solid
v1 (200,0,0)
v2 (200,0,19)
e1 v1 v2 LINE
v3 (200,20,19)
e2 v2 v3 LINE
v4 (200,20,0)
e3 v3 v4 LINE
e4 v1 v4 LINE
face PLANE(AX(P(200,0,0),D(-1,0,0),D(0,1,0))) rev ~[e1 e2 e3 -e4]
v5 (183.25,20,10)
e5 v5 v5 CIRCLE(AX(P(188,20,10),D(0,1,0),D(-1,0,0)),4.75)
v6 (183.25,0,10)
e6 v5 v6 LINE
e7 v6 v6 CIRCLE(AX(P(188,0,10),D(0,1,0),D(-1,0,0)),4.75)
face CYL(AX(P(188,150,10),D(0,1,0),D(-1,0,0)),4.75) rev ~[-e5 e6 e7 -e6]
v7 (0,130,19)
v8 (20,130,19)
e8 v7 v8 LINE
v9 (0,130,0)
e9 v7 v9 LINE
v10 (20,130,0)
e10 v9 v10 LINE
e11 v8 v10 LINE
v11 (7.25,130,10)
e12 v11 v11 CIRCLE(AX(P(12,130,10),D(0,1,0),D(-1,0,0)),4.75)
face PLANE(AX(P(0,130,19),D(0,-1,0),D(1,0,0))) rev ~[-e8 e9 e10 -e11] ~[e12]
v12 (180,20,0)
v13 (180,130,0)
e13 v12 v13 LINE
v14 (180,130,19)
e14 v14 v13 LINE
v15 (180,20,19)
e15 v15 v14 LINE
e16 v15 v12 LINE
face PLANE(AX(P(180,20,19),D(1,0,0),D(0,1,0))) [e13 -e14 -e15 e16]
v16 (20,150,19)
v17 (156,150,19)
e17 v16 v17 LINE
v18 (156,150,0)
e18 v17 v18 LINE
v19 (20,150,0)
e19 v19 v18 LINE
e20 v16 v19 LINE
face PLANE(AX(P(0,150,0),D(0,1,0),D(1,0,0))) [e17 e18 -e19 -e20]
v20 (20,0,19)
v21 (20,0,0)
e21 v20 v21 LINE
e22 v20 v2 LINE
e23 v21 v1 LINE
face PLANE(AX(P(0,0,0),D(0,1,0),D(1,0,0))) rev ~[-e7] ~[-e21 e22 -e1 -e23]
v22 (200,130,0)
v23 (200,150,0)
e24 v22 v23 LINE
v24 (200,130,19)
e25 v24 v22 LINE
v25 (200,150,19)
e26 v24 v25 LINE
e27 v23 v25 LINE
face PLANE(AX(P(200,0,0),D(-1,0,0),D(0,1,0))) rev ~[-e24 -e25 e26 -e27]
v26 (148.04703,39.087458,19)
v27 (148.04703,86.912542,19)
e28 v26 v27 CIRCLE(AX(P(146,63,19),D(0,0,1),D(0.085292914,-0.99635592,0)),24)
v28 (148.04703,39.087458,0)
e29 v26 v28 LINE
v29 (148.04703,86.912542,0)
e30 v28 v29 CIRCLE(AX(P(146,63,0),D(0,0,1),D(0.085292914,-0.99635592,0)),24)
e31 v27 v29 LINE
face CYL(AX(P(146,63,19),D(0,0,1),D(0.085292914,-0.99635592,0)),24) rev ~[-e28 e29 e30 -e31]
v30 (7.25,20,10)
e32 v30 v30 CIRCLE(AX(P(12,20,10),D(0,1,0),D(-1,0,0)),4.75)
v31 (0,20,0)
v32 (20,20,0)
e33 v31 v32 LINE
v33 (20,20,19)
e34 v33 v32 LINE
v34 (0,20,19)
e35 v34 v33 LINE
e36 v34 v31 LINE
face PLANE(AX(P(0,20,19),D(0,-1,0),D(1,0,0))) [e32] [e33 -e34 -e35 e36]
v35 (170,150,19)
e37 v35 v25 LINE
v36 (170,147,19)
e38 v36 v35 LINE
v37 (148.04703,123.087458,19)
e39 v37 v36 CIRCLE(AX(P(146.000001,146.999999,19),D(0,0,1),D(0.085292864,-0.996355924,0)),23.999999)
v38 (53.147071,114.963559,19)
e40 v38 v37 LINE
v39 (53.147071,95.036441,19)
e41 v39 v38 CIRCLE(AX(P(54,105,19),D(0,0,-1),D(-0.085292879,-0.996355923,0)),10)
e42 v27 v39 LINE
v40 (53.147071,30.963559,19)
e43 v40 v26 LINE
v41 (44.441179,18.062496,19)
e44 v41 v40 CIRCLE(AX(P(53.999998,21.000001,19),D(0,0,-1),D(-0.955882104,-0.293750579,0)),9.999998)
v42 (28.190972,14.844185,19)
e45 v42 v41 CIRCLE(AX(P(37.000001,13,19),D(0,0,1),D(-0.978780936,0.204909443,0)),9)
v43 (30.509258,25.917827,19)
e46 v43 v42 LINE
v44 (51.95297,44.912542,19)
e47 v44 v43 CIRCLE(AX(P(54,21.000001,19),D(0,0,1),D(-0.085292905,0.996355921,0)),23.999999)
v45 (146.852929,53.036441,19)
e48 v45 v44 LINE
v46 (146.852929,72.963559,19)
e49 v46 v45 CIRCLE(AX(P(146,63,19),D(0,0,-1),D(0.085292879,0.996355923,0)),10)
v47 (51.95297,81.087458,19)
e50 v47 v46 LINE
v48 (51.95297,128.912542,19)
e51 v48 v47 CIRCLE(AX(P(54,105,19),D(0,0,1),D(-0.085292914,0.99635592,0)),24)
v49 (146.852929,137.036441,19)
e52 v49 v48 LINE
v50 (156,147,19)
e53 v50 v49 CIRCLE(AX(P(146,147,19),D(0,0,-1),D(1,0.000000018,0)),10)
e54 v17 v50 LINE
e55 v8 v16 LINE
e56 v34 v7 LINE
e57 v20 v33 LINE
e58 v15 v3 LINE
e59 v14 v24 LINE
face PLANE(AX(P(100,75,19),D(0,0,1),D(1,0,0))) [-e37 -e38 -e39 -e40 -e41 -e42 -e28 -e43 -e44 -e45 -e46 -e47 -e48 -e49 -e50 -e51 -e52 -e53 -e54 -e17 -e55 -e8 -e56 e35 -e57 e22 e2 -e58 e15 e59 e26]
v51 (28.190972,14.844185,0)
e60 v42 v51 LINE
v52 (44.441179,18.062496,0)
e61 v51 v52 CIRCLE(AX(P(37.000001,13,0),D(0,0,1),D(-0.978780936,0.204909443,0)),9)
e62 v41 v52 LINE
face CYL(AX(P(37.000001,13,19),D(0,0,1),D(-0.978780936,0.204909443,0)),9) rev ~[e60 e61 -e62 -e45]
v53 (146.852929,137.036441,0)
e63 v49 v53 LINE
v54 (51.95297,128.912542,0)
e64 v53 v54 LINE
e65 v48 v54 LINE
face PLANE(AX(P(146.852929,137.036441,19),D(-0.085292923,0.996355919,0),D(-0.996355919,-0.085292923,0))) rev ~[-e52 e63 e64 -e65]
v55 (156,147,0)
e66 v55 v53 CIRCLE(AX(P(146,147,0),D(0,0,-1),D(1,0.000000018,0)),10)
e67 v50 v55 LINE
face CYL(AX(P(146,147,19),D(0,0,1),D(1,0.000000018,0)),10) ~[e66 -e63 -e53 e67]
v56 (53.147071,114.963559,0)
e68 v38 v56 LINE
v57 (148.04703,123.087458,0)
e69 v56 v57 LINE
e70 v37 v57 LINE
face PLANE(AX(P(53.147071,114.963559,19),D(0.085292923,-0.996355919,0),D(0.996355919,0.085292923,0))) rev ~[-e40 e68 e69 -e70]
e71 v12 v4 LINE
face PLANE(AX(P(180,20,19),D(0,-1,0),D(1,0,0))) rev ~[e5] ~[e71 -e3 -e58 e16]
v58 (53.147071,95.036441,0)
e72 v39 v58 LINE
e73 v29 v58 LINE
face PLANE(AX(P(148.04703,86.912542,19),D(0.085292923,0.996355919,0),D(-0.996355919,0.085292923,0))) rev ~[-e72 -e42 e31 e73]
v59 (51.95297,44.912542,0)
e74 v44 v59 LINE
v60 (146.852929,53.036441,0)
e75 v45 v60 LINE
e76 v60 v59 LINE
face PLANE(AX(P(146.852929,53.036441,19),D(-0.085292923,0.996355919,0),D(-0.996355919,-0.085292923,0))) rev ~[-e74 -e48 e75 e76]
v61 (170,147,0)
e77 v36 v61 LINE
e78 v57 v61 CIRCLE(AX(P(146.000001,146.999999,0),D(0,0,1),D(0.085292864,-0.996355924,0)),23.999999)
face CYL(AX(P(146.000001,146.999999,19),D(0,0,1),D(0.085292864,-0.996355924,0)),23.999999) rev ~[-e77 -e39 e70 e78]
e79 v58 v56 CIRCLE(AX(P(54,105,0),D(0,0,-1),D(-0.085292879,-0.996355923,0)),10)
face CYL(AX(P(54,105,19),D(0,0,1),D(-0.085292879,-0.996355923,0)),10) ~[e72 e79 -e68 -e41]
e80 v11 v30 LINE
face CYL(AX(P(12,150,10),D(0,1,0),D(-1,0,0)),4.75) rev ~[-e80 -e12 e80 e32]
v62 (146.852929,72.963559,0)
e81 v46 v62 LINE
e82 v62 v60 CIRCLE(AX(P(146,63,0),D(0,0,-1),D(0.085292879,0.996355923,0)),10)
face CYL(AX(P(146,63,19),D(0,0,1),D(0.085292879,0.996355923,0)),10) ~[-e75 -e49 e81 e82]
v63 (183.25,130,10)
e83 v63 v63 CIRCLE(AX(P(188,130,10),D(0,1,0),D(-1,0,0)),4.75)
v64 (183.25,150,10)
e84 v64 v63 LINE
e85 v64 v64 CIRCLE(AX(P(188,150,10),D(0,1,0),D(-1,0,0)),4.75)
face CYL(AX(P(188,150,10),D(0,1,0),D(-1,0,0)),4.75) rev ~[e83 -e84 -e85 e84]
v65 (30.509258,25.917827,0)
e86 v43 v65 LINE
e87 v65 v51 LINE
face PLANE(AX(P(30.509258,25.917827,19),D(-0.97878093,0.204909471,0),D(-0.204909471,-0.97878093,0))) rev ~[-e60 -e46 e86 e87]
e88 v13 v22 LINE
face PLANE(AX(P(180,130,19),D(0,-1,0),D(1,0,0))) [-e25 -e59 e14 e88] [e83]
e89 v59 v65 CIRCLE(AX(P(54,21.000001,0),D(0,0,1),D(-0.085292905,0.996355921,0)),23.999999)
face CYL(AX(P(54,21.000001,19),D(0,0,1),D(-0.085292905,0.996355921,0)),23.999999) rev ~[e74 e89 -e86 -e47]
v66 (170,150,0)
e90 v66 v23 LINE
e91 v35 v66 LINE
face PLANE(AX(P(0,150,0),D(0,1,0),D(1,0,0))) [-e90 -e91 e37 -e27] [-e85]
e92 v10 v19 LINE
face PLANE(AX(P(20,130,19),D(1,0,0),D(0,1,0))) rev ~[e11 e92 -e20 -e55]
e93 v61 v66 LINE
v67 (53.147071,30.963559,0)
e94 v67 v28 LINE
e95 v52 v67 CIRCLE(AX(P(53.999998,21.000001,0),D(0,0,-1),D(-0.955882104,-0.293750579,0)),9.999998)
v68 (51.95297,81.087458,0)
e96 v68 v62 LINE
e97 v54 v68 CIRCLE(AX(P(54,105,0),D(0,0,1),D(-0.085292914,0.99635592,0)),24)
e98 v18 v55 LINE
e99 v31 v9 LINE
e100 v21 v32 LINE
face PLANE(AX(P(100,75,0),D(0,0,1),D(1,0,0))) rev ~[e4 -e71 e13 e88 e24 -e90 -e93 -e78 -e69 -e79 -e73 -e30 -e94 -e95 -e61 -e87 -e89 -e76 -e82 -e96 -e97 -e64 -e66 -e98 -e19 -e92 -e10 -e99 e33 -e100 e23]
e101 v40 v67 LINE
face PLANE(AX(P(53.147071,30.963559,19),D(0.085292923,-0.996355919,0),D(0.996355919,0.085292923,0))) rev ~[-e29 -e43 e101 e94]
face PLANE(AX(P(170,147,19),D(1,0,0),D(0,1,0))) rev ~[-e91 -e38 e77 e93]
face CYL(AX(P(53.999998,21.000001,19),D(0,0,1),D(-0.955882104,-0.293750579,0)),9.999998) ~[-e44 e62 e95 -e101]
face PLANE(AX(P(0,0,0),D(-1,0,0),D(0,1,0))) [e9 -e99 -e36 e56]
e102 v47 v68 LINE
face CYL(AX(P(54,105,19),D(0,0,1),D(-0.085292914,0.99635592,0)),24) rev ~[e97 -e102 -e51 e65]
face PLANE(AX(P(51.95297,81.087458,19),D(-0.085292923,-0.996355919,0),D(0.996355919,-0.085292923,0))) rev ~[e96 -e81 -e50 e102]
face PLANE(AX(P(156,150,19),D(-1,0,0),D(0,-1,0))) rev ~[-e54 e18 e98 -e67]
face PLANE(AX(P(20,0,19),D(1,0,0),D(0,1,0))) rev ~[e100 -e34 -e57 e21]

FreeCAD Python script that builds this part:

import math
import FreeCAD as App
import Part
import Sketcher
Q = App.Units.Quantity

doc = App.newDocument("Part")
body = doc.addObject("PartDesign::Body", "Body")

# Sketch on XY plane
sketch1 = doc.addObject("Sketcher::SketchObject", "Sketch")
body.addObject(sketch1)
sketch1.AttachmentSupport = (doc.XY_Plane, [""])
sketch1.MapMode = "FlatFace"
sketch1.addGeometry([
    Part.LineSegment(App.Vector(0, 150, 0), App.Vector(0, 0, 0)),
    Part.LineSegment(App.Vector(0, 0, 0), App.Vector(200, 0, 0)),
    Part.LineSegment(App.Vector(200, 0, 0), App.Vector(200, 150, 0)),
    Part.LineSegment(App.Vector(200, 150, 0), App.Vector(0, 150, 0)),
], False)
sketch1.addConstraint([
    Sketcher.Constraint("Coincident", 0, 2, 1, 1),
    Sketcher.Constraint("Coincident", 1, 2, 2, 1),
    Sketcher.Constraint("Coincident", 2, 2, 3, 1),
    Sketcher.Constraint("Coincident", 3, 2, 0, 1),
    Sketcher.Constraint("Vertical", 0),
    Sketcher.Constraint("Horizontal", 1),
    Sketcher.Constraint("Vertical", 2),
    Sketcher.Constraint("Horizontal", 3),
    Sketcher.Constraint("Coincident", 0, 2, -1, 1),
    Sketcher.Constraint("DistanceX", 1, 1, 1, 2, Q("200 mm")),
    Sketcher.Constraint("DistanceY", 0, 2, 0, 1, Q("150 mm")),
])
pad1 = doc.addObject("PartDesign::Pad", "Pad")
body.addObject(pad1)
pad1.Profile = sketch1
pad1.Length = 19

# Sketch on XY plane
sketch2 = doc.addObject("Sketcher::SketchObject", "Sketch001")
body.addObject(sketch2)
sketch2.AttachmentSupport = (doc.XY_Plane, [""])
sketch2.MapMode = "FlatFace"
sketch2.AttachmentOffset = App.Placement(App.Vector(0, 0, 19), App.Rotation())
sketch2.addGeometry([
    Part.LineSegment(App.Vector(0, 150, 0), App.Vector(0, 130, 0)),  # 0
    Part.LineSegment(App.Vector(0, 130, 0), App.Vector(20, 130, 0)),  # 1
    Part.LineSegment(App.Vector(20, 130, 0), App.Vector(20, 150, 0)),  # 2
    Part.LineSegment(App.Vector(20, 150, 0), App.Vector(0, 150, 0)),  # 3
    Part.LineSegment(App.Vector(0, 20, 0), App.Vector(0, 0, 0)),  # 4
    Part.LineSegment(App.Vector(0, 0, 0), App.Vector(20, 0, 0)),  # 5
    Part.LineSegment(App.Vector(20, 0, 0), App.Vector(20, 20, 0)),  # 6
    Part.LineSegment(App.Vector(20, 20, 0), App.Vector(0, 20, 0)),  # 7
    Part.LineSegment(App.Vector(180, 130, 0), App.Vector(180, 20, 0)),  # 8
    Part.LineSegment(App.Vector(180, 20, 0), App.Vector(200, 20, 0)),  # 9
    Part.LineSegment(App.Vector(200, 20, 0), App.Vector(200, 130, 0)),  # 10
    Part.LineSegment(App.Vector(200, 130, 0), App.Vector(180, 130, 0)),  # 11
], False)
sketch2.addConstraint([
    Sketcher.Constraint("Coincident", 0, 2, 1, 1),
    Sketcher.Constraint("Coincident", 1, 2, 2, 1),
    Sketcher.Constraint("Coincident", 2, 2, 3, 1),
    Sketcher.Constraint("Coincident", 3, 2, 0, 1),
    Sketcher.Constraint("Coincident", 4, 2, 5, 1),
    Sketcher.Constraint("Coincident", 5, 2, 6, 1),
    Sketcher.Constraint("Coincident", 6, 2, 7, 1),
    Sketcher.Constraint("Coincident", 7, 2, 4, 1),
    Sketcher.Constraint("Coincident", 8, 2, 9, 1),
    Sketcher.Constraint("Coincident", 9, 2, 10, 1),
    Sketcher.Constraint("Coincident", 10, 2, 11, 1),
    Sketcher.Constraint("Coincident", 11, 2, 8, 1),
    Sketcher.Constraint("Vertical", 0),
    Sketcher.Constraint("Horizontal", 1),
    Sketcher.Constraint("Vertical", 2),
    Sketcher.Constraint("Horizontal", 3),
    Sketcher.Constraint("Vertical", 4),
    Sketcher.Constraint("Horizontal", 5),
    Sketcher.Constraint("Vertical", 6),
    Sketcher.Constraint("Horizontal", 7),
    Sketcher.Constraint("Vertical", 8),
    Sketcher.Constraint("Horizontal", 9),
    Sketcher.Constraint("Vertical", 10),
    Sketcher.Constraint("Horizontal", 11),
    Sketcher.Constraint("Coincident", 4, 2, -1, 1),
    Sketcher.Constraint("PointOnObject", 0, 2, -2),
    Sketcher.Constraint("Horizontal", 7, 2, 8, 2),
    Sketcher.Constraint("Horizontal", 1, 2, 10, 2),
    Sketcher.Constraint("Vertical", 2, 2, 5, 2),
    Sketcher.Constraint("Equal", 7, 9),
    Sketcher.Constraint("Equal", 11, 0),
    Sketcher.Constraint("Equal", 2, 4),
    Sketcher.Constraint("DistanceX", 1, 1, 1, 2, Q("20 mm")),
    Sketcher.Constraint("DistanceY", 8, 2, 8, 1, Q("110 mm")),
    Sketcher.Constraint("DistanceX", -1, 1, 8, 2, Q("180 mm")),
])
pocket1 = doc.addObject("PartDesign::Pocket", "Pocket")
body.addObject(pocket1)
pocket1.Profile = sketch2
pocket1.Length = 19

# Sketch on XZ plane
sketch3 = doc.addObject("Sketcher::SketchObject", "Sketch002")
body.addObject(sketch3)
sketch3.AttachmentSupport = (doc.XZ_Plane, [""])
sketch3.MapMode = "FlatFace"
sketch3.AttachmentOffset = App.Placement(App.Vector(0, 0, -150), App.Rotation())
sketch3.addGeometry([
    Part.Circle(App.Vector(12, 10, 0), App.Vector(0, 0, 1), 4.8),
    Part.Circle(App.Vector(188, 10, 0), App.Vector(0, 0, 1), 4.8),
], False)
sketch3.addConstraint([
    Sketcher.Constraint("Equal", 0, 1),
    Sketcher.Constraint("Horizontal", 0, 3, 1, 3),
    Sketcher.Constraint("Diameter", 0, Q("9.5 mm")),
    Sketcher.Constraint("DistanceX", -1, 1, 0, 3, Q("12 mm")),
    Sketcher.Constraint("DistanceY", -1, 1, 0, 3, Q("10 mm")),
    Sketcher.Constraint("DistanceX", -1, 1, 1, 3, Q("188 mm")),
])
pocket2 = doc.addObject("PartDesign::Pocket", "Pocket001")
body.addObject(pocket2)
pocket2.Profile = sketch3
pocket2.Length = 150
pocket2.Reversed = True

# Sketch on XY plane
sketch4 = doc.addObject("Sketcher::SketchObject", "Sketch003")
body.addObject(sketch4)
sketch4.AttachmentSupport = (doc.XY_Plane, [""])
sketch4.MapMode = "FlatFace"
sketch4.AttachmentOffset = App.Placement(App.Vector(0, 0, 19), App.Rotation())
sketch4.addGeometry([
    Part.LineSegment(App.Vector(170, 147, 0), App.Vector(170, 150, 0)),  # 0
    Part.LineSegment(App.Vector(170, 150, 0), App.Vector(156, 150, 0)),  # 1
    Part.LineSegment(App.Vector(156, 150, 0), App.Vector(156, 147, 0)),  # 2
    Part.ArcOfCircle(Part.Circle(App.Vector(146, 147, 0), App.Vector(0, 0, 1), 10), math.radians(-85), math.radians(0)),  # 3
    Part.LineSegment(App.Vector(146.9, 137, 0), App.Vector(52, 128.9, 0)),  # 4
    Part.ArcOfCircle(Part.Circle(App.Vector(54, 105, 0), App.Vector(0, 0, 1), 24), math.radians(95), math.radians(265)),  # 5
    Part.LineSegment(App.Vector(52, 81.1, 0), App.Vector(146.9, 73, 0)),  # 6
    Part.ArcOfCircle(Part.Circle(App.Vector(146, 63, 0), App.Vector(0, 0, 1), 10), math.radians(-85), math.radians(85)),  # 7
    Part.LineSegment(App.Vector(146.9, 53, 0), App.Vector(52, 44.9, 0)),  # 8
    Part.ArcOfCircle(Part.Circle(App.Vector(54, 21, 0), App.Vector(0, 0, 1), 24), math.radians(95), math.radians(168)),  # 9
    Part.LineSegment(App.Vector(30.5, 25.9, 0), App.Vector(28.2, 14.8, 0)),  # 10
    Part.ArcOfCircle(Part.Circle(App.Vector(37, 13, 0), App.Vector(0, 0, 1), 9), math.radians(168), math.radians(394)),  # 11
    Part.ArcOfCircle(Part.Circle(App.Vector(54, 21, 0), App.Vector(0, 0, 1), 10), math.radians(95), math.radians(197)),  # 12
    Part.LineSegment(App.Vector(53.1, 31, 0), App.Vector(148, 39.1, 0)),  # 13
    Part.ArcOfCircle(Part.Circle(App.Vector(146, 63, 0), App.Vector(0, 0, 1), 24), math.radians(-85), math.radians(85)),  # 14
    Part.LineSegment(App.Vector(148, 86.9, 0), App.Vector(53.1, 95, 0)),  # 15
    Part.ArcOfCircle(Part.Circle(App.Vector(54, 105, 0), App.Vector(0, 0, 1), 10), math.radians(95), math.radians(265)),  # 16
    Part.LineSegment(App.Vector(53.1, 115, 0), App.Vector(148, 123.1, 0)),  # 17
    Part.ArcOfCircle(Part.Circle(App.Vector(146, 147, 0), App.Vector(0, 0, 1), 24), math.radians(-85), math.radians(0)),  # 18
], False)
sketch4.addConstraint([
    Sketcher.Constraint("Coincident", 0, 2, 1, 1),
    Sketcher.Constraint("Coincident", 1, 2, 2, 1),
    Sketcher.Constraint("Tangent", 2, 2, 3, 2),
    Sketcher.Constraint("Tangent", 3, 1, 4, 1),
    Sketcher.Constraint("Tangent", 4, 2, 5, 1),
    Sketcher.Constraint("Tangent", 5, 2, 6, 1),
    Sketcher.Constraint("Tangent", 6, 2, 7, 2),
    Sketcher.Constraint("Tangent", 7, 1, 8, 1),
    Sketcher.Constraint("Tangent", 8, 2, 9, 1),
    Sketcher.Constraint("Tangent", 9, 2, 10, 1),
    Sketcher.Constraint("Tangent", 10, 2, 11, 1),
    Sketcher.Constraint("Coincident", 11, 2, 12, 2),
    Sketcher.Constraint("Tangent", 12, 1, 13, 1),
    Sketcher.Constraint("Tangent", 13, 2, 14, 1),
    Sketcher.Constraint("Tangent", 14, 2, 15, 1),
    Sketcher.Constraint("Tangent", 15, 2, 16, 2),
    Sketcher.Constraint("Tangent", 16, 1, 17, 1),
    Sketcher.Constraint("Tangent", 17, 2, 18, 1),
    Sketcher.Constraint("Tangent", 18, 2, 0, 1),
    Sketcher.Constraint("Vertical", 0),
    Sketcher.Constraint("Horizontal", 1),
    Sketcher.Constraint("Vertical", 2),
    Sketcher.Constraint("Coincident", 12, 3, 9, 3),
    Sketcher.Constraint("Coincident", 14, 3, 7, 3),
    Sketcher.Constraint("Coincident", 16, 3, 5, 3),
    Sketcher.Constraint("Coincident", 18, 3, 3, 3),
    Sketcher.Constraint("Equal", 3, 7),
    Sketcher.Constraint("Equal", 5, 9),
    Sketcher.Constraint("Equal", 7, 12),
    Sketcher.Constraint("Equal", 9, 14),
    Sketcher.Constraint("Equal", 12, 16),
    Sketcher.Constraint("Equal", 14, 18),
    Sketcher.Constraint("Parallel", 4, 8),
    Sketcher.Constraint("Vertical", 3, 3, 7, 3),
    Sketcher.Constraint("Vertical", 5, 3, 9, 3),
    Sketcher.Constraint("Vertical", 4, 2, 5, 2),
    Sketcher.Constraint("Radius", 3, Q("10 mm")),
    Sketcher.Constraint("Radius", 5, Q("24 mm")),
    Sketcher.Constraint("Radius", 11, Q("9 mm")),
    Sketcher.Constraint("DistanceY", 0, 1, 0, 2, Q("3 mm")),
    Sketcher.Constraint("DistanceX", -1, 1, 3, 3, Q("146 mm")),
    Sketcher.Constraint("DistanceY", -1, 1, 3, 3, Q("147 mm")),
    Sketcher.Constraint("DistanceX", -1, 1, 5, 3, Q("54 mm")),
    Sketcher.Constraint("DistanceY", -1, 1, 5, 3, Q("105 mm")),
    Sketcher.Constraint("DistanceX", -1, 1, 11, 3, Q("37.000001 mm")),
    Sketcher.Constraint("DistanceY", -1, 1, 11, 3, Q("13 mm")),
])
pocket3 = doc.addObject("PartDesign::Pocket", "Pocket002")
body.addObject(pocket3)
pocket3.Profile = sketch4
pocket3.Length = 19

doc.recompute()
